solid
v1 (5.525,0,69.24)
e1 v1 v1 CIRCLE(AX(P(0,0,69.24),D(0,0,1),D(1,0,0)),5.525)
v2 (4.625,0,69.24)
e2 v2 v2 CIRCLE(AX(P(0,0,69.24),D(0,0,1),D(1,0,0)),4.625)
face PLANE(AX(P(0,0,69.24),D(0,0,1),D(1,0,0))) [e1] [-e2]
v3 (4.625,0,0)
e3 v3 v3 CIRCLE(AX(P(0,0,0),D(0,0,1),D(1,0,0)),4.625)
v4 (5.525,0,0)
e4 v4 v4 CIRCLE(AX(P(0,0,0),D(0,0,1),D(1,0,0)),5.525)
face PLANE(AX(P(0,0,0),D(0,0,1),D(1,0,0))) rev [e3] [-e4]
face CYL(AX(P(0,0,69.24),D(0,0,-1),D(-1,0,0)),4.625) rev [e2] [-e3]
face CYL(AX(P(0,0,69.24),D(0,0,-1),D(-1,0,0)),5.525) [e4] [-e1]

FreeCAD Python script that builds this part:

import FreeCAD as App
import Part
import Sketcher
from FreeCAD import Vector

doc = App.newDocument("Part")
body = doc.addObject("PartDesign::Body", "Body")

# Sketch on XY plane
sketch1 = doc.addObject("Sketcher::SketchObject", "Sketch")
body.addObject(sketch1)
sketch1.AttachmentSupport = (doc.XY_Plane, [""])
sketch1.MapMode = "FlatFace"
sketch1.addGeometry(Part.Circle(Vector(0, 0, 0), Vector(0, 0, 1), 5.5), False)
sketch1.addGeometry(Part.Circle(Vector(0, 0, 0), Vector(0, 0, 1), 4.6), False)
sketch1.addConstraint(Sketcher.Constraint("Coincident", 0, 3, -1, 1))
sketch1.addConstraint(Sketcher.Constraint("Coincident", 1, 3, -1, 1))
sketch1.addConstraint(Sketcher.Constraint("Diameter", 0, 11.05))
sketch1.addConstraint(Sketcher.Constraint("Diameter", 1, 9.25))
pad1 = doc.addObject("PartDesign::Pad", "Pad")
body.addObject(pad1)
pad1.Profile = sketch1
pad1.Length = 69.24

doc.recompute()
